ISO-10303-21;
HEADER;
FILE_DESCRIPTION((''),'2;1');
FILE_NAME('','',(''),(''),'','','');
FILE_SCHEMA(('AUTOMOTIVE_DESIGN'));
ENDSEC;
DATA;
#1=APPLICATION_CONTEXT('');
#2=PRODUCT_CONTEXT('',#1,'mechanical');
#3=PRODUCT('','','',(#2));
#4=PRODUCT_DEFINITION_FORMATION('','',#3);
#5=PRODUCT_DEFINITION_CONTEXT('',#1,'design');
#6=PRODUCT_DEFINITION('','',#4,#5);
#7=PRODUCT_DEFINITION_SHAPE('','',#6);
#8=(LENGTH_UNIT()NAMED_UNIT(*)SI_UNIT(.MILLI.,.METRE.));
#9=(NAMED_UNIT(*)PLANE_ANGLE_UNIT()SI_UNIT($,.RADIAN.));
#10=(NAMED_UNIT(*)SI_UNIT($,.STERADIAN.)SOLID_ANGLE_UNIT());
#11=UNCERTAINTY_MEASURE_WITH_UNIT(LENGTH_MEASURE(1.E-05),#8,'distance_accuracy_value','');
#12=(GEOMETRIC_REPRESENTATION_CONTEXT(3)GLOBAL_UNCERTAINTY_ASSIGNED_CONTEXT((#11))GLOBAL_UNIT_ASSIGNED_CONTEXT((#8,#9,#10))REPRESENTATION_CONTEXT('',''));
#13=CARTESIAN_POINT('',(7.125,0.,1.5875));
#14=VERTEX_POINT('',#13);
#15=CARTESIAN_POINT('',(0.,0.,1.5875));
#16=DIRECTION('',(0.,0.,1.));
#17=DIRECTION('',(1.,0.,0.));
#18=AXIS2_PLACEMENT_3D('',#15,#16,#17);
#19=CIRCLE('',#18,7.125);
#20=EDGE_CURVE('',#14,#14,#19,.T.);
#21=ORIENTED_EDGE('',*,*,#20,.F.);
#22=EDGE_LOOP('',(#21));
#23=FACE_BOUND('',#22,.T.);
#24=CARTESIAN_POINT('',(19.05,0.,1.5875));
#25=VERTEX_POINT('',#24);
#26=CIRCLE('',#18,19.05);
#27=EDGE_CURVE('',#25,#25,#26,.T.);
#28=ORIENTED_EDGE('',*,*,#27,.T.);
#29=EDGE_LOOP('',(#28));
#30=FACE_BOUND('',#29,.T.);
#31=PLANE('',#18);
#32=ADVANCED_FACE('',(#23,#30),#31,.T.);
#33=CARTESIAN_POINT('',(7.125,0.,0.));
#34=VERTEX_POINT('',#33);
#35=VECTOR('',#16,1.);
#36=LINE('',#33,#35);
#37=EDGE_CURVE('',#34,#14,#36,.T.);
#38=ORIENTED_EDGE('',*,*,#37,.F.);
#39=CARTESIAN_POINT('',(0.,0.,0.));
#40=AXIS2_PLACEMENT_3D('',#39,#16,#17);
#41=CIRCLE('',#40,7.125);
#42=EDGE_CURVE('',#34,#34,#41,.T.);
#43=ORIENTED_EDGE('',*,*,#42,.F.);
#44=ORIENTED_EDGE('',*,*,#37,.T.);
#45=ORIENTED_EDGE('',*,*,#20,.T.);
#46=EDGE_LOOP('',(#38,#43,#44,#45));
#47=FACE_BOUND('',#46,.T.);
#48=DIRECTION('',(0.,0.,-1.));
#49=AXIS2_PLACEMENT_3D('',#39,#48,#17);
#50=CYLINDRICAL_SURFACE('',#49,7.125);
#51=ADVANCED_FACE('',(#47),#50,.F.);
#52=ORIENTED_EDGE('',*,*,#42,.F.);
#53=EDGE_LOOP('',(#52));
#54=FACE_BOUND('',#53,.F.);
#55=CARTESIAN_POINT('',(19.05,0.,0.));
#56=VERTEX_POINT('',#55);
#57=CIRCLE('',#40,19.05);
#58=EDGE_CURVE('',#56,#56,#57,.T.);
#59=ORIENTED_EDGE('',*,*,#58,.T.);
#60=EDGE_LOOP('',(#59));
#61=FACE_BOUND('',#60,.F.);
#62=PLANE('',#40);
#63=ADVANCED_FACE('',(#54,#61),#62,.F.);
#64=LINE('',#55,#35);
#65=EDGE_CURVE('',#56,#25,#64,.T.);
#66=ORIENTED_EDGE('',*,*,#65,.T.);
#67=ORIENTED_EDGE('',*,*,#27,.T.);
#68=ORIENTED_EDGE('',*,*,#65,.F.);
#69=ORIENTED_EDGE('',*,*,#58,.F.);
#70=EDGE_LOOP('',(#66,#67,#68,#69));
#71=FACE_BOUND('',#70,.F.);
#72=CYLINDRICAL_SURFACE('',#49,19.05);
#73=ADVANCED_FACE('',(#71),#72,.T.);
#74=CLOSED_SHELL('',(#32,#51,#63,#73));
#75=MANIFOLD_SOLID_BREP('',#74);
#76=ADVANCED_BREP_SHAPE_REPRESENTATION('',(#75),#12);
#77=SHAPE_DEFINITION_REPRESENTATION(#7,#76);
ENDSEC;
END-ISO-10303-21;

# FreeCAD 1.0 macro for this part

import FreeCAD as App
import Part
import Sketcher
Q = App.Units.Quantity

doc = App.newDocument("Part")
params = doc.addObject("Spreadsheet::Sheet", "Params")
for row, (alias, value) in enumerate([
    ("sketch1_diameter", "1.5 in"),
    ("pad1_length", "0.0625 in"),
], start=1):
    params.set(f"A{row}", alias)
    params.set(f"B{row}", "=" + value)
    params.setAlias(f"B{row}", alias)

body = doc.addObject("PartDesign::Body", "Body")

sketch1 = body.newObject("Sketcher::SketchObject", "Sketch")
sketch1.AttachmentSupport = (doc.getObject("XY_Plane"), [""])
sketch1.MapMode = "FlatFace"
sketch1.addGeometry(Part.Circle(App.Vector(0, 0, 0), App.Vector(0, 0, 1), 19), False)
sketch1.addGeometry(Part.Circle(App.Vector(0, 0, 0), App.Vector(0, 0, 1), 7), False)
sketch1.addConstraint(Sketcher.Constraint("Coincident", 0, 3, -1, 1))
sketch1.addConstraint(Sketcher.Constraint("Coincident", 1, 3, -1, 1))
sketch1.addConstraint(Sketcher.Constraint("Diameter", 0, Q("1.5 in")))
sketch1.addConstraint(Sketcher.Constraint("Diameter", 1, 14.25))
sketch1.setExpression("Constraints[2]", "Params.sketch1_diameter")
pad1 = body.newObject("PartDesign::Pad", "Pad")
pad1.Profile = sketch1
pad1.setExpression("Length", "Params.pad1_length")

doc.recompute()
